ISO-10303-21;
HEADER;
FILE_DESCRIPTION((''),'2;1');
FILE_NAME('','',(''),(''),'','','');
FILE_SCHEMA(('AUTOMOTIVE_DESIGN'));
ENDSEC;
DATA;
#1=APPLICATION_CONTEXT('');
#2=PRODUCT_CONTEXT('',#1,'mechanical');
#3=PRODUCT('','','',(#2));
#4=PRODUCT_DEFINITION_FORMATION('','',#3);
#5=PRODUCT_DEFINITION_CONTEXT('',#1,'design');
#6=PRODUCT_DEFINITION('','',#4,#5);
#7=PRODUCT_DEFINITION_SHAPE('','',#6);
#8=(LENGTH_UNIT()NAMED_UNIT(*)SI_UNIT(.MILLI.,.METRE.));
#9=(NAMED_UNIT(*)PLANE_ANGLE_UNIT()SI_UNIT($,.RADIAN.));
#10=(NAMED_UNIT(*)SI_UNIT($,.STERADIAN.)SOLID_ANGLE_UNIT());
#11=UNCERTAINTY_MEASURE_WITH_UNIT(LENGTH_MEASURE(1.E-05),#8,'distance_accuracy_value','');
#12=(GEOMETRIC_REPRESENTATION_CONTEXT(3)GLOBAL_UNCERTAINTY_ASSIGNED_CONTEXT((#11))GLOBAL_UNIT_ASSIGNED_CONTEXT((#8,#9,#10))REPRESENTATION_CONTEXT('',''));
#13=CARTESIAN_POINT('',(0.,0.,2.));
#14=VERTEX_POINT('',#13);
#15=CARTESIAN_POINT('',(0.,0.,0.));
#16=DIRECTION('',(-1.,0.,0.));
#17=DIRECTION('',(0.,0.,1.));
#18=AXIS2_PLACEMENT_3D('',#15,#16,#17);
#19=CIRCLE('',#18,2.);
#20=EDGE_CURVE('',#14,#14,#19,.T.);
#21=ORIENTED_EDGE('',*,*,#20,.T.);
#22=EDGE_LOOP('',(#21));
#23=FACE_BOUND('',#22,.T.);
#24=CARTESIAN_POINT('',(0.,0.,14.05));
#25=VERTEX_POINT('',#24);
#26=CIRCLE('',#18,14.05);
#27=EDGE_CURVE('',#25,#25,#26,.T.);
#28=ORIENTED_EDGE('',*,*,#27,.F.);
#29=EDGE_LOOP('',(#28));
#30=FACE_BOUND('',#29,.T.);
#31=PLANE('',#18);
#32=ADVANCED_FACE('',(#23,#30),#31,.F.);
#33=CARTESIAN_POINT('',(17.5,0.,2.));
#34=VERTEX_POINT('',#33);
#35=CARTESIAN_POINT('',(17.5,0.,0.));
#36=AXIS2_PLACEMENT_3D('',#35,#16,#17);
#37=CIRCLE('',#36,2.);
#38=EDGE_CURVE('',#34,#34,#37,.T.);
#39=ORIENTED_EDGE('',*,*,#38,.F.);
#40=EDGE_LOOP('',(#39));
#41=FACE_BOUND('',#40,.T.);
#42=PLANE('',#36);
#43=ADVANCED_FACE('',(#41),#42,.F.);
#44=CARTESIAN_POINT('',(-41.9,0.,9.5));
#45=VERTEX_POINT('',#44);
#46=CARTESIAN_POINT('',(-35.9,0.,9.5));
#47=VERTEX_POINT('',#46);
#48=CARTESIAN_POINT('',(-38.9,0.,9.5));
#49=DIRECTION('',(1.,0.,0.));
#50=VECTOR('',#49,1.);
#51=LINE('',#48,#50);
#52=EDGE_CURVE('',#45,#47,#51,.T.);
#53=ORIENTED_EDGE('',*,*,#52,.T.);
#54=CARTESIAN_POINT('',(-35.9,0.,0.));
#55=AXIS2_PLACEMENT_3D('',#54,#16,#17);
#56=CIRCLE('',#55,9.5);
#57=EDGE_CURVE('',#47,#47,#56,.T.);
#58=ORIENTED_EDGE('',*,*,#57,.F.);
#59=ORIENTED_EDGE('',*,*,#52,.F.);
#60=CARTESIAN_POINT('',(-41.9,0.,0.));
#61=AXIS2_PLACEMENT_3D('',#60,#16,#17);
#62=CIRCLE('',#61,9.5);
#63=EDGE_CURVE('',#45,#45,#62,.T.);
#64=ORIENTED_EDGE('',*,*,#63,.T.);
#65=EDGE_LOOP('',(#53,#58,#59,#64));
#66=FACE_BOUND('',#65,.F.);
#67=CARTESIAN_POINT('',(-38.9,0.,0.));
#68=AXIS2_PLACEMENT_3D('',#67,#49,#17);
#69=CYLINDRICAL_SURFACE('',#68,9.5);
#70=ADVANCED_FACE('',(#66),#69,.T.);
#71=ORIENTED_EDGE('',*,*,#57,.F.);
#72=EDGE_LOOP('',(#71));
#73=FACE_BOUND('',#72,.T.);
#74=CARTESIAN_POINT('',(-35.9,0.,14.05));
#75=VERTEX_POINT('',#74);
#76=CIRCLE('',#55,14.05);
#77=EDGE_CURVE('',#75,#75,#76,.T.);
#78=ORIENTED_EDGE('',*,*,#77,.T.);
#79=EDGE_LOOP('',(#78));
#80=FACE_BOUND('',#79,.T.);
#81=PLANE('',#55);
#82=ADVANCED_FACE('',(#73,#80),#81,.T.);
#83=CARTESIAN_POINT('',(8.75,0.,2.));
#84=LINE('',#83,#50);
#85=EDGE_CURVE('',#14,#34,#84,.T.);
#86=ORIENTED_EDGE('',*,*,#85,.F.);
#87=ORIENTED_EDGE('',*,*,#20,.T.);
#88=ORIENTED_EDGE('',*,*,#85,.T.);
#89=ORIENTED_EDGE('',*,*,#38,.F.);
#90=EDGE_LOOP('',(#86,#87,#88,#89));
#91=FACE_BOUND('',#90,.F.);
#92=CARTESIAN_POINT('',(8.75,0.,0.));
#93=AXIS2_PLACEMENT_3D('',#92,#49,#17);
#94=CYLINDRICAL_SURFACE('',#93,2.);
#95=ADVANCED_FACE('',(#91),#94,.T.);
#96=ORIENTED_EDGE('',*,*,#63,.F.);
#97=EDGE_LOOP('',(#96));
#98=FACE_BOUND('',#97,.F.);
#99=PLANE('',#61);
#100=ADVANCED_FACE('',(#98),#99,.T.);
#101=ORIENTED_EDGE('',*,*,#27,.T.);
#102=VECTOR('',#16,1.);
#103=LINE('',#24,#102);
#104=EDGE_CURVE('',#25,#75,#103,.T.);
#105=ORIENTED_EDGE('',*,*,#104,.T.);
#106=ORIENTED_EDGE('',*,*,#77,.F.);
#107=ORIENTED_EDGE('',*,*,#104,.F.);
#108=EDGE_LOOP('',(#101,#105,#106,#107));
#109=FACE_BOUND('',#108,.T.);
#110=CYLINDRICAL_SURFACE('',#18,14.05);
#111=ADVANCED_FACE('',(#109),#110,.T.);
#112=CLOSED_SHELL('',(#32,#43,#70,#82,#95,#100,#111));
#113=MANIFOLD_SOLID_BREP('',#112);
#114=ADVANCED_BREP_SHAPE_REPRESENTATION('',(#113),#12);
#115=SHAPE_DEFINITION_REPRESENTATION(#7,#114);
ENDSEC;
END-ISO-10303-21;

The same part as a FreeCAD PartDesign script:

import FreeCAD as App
import Part
import Sketcher
Q = App.Units.Quantity


def add_polygon(sketch, points):
    """Adds a closed chain of lines whose ends are joined by coincident constraints."""
    first, n = sketch.GeometryCount, len(points)
    for a, b in zip(points, points[1:] + points[:1]):
        sketch.addGeometry(Part.LineSegment(App.Vector(*a, 0), App.Vector(*b, 0)), False)
    for i in range(n):
        sketch.addConstraint(Sketcher.Constraint("Coincident", first + i, 2, first + (i + 1) % n, 1))

doc = App.newDocument("Part")
body = doc.addObject("PartDesign::Body", "Body")

# Sketch on XZ plane
sketch1 = body.newObject("Sketcher::SketchObject", "Sketch")
sketch1.AttachmentSupport = (doc.getObject("XZ_Plane"), [""])
sketch1.MapMode = "FlatFace"
add_polygon(sketch1, [(0, 14.1), (-35.9, 14.1), (-35.9, 9.5), (-41.9, 9.5), (-41.9, 0), (17.5, 0), (17.5, 2), (0, 2)])  # lines 0-7
sketch1.addConstraint([
    Sketcher.Constraint("Horizontal", 0),
    Sketcher.Constraint("Vertical", 1),
    Sketcher.Constraint("Horizontal", 2),
    Sketcher.Constraint("Vertical", 3),
    Sketcher.Constraint("Horizontal", 4),
    Sketcher.Constraint("Vertical", 5),
    Sketcher.Constraint("Horizontal", 6),
    Sketcher.Constraint("Vertical", 7),
    Sketcher.Constraint("PointOnObject", 3, 2, -1),
    Sketcher.Constraint("PointOnObject", 6, 2, -2),
    Sketcher.Constraint("DistanceX", 2, 2, 2, 1, Q("6 mm")),
    Sketcher.Constraint("DistanceY", 5, 1, 5, 2, Q("2 mm")),
    Sketcher.Constraint("DistanceX", 0, 2, 0, 1, Q("35.9 mm")),
    Sketcher.Constraint("DistanceX", 4, 1, 4, 2, Q("59.4 mm")),
    Sketcher.Constraint("DistanceY", 3, 2, 3, 1, Q("9.5 mm")),
    Sketcher.Constraint("DistanceY", 1, 2, 1, 1, Q("4.55 mm")),
])
revolution = body.newObject("PartDesign::Revolution", "Revolution")
revolution.Profile = sketch1
revolution.ReferenceAxis = (sketch1, ["H_Axis"])
revolution.Angle = 360

doc.recompute()
